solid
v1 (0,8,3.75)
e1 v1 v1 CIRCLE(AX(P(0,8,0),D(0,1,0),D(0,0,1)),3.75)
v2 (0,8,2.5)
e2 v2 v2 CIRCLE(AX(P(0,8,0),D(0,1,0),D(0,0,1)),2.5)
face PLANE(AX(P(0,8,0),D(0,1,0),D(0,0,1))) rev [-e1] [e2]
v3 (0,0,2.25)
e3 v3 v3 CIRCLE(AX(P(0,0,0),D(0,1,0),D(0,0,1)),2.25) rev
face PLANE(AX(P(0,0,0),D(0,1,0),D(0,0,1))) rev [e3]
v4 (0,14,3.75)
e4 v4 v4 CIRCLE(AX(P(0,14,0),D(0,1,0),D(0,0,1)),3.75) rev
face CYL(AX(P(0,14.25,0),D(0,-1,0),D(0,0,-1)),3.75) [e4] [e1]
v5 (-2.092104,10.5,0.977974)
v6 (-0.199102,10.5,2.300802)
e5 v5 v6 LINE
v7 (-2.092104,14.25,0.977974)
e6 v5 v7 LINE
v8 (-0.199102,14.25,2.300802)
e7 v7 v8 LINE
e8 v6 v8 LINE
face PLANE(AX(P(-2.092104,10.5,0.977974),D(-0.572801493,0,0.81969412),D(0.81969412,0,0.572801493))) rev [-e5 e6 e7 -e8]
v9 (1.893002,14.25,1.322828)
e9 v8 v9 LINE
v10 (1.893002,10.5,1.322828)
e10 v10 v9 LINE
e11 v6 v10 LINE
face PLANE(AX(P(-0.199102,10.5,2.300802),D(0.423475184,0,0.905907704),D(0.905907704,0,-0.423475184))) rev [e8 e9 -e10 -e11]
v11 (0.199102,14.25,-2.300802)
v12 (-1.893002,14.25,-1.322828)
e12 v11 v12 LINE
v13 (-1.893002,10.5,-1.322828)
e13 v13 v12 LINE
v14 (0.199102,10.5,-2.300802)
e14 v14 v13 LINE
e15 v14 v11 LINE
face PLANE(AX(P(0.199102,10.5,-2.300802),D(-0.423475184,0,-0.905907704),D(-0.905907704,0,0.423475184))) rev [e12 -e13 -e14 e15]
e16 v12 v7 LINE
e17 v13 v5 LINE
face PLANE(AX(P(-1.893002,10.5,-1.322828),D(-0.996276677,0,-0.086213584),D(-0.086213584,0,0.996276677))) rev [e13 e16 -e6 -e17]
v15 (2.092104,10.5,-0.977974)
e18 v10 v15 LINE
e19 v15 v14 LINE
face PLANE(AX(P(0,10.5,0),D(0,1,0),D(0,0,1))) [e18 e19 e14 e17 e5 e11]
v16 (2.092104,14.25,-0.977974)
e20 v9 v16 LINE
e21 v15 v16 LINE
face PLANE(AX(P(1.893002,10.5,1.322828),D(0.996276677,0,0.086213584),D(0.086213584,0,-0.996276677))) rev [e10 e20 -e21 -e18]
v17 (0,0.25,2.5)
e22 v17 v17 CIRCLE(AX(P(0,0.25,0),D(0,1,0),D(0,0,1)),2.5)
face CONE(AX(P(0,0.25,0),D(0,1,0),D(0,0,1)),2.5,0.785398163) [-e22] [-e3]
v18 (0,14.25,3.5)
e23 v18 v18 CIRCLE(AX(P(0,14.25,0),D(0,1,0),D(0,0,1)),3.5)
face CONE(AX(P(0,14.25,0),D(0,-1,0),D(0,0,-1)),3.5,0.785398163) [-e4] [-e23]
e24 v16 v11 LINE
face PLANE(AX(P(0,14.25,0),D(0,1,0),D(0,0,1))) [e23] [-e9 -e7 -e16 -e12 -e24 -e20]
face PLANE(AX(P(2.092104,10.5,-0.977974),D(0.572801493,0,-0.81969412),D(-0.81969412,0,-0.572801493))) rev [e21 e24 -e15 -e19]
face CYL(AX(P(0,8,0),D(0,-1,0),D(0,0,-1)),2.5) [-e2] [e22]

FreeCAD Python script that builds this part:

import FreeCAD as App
import Part
import Sketcher

V = App.Vector
Q = App.Units.Quantity


def edges_at(feature, points):
    """Names of the edges that pass closest to the given points."""
    edges = feature.Shape.Edges
    near = lambda p: min(range(len(edges)), key=lambda i: edges[i].distToShape(Part.Vertex(*p))[0])
    return sorted({f"Edge{near(p) + 1}" for p in points})

doc = App.newDocument("Part")
body = doc.addObject("PartDesign::Body", "Body")

sketch1 = body.newObject("Sketcher::SketchObject", "Sketch")
sketch1.AttachmentSupport = (doc.getObject("XZ_Plane"), [""])
sketch1.MapMode = "FlatFace"
sketch1.addGeometry(Part.Circle(V(0, 0, 0), V(0, 0, 1), 2.5), False)
sketch1.addConstraint([
    Sketcher.Constraint("Coincident", 0, 3, -1, 1),
    Sketcher.Constraint("Diameter", 0, Q("5 mm")),
])
pad1 = body.newObject("PartDesign::Pad", "Pad")
pad1.Profile = sketch1
pad1.Length = 8
pad1.Reversed = True

sketch2 = body.newObject("Sketcher::SketchObject", "Sketch001")
sketch2.AttachmentSupport = (doc.getObject("XZ_Plane"), [""])
sketch2.MapMode = "FlatFace"
sketch2.AttachmentOffset = App.Placement(V(0, 0, -8), App.Rotation())
sketch2.addGeometry(Part.Circle(V(0, 0, 0), V(0, 0, 1), 3.8), False)
sketch2.addConstraint([
    Sketcher.Constraint("Coincident", 0, 3, -1, 1),
    Sketcher.Constraint("Diameter", 0, Q("7.5 mm")),
])
pad2 = body.newObject("PartDesign::Pad", "Pad001")
pad2.Profile = sketch2
pad2.Length = 6.25
pad2.Reversed = True

sketch3 = body.newObject("Sketcher::SketchObject", "Sketch002")
sketch3.AttachmentSupport = (doc.getObject("XZ_Plane"), [""])
sketch3.MapMode = "FlatFace"
sketch3.AttachmentOffset = App.Placement(V(0, 0, -14.25), App.Rotation())
sketch3.addGeometry([
    Part.LineSegment(V(-0.2, 2.3, 0), V(1.9, 1.3, 0)),
    Part.LineSegment(V(1.9, 1.3, 0), V(2.1, -1, 0)),
    Part.LineSegment(V(2.1, -1, 0), V(0.2, -2.3, 0)),
    Part.LineSegment(V(0.2, -2.3, 0), V(-1.9, -1.3, 0)),
    Part.LineSegment(V(-1.9, -1.3, 0), V(-2.1, 1, 0)),
    Part.LineSegment(V(-2.1, 1, 0), V(-0.2, 2.3, 0)),
], False)
sketch3.addConstraint([
    Sketcher.Constraint("Coincident", 0, 2, 1, 1),
    Sketcher.Constraint("Coincident", 1, 2, 2, 1),
    Sketcher.Constraint("Coincident", 2, 2, 3, 1),
    Sketcher.Constraint("Coincident", 3, 2, 4, 1),
    Sketcher.Constraint("Coincident", 4, 2, 5, 1),
    Sketcher.Constraint("Coincident", 5, 2, 0, 1),
    Sketcher.Constraint("Symmetric", 0, 2, 3, 2, -1, 1),
    Sketcher.Constraint("Symmetric", 1, 2, 4, 2, -1, 1),
    Sketcher.Constraint("Symmetric", 2, 2, 5, 2, -1, 1),
    Sketcher.Constraint("Equal", 0, 1),
    Sketcher.Constraint("Equal", 1, 2),
    Sketcher.Constraint("Distance", 0, Q("2.309401 mm")),
    Sketcher.Constraint("DistanceX", -1, 1, 2, 2, Q("0.199102 mm")),
    Sketcher.Constraint("DistanceX", 0, 2, 1, 2, Q("0.199102 mm")),
    Sketcher.Constraint("DistanceX", 2, 2, 0, 2, Q("1.693901 mm")),
])
pocket1 = body.newObject("PartDesign::Pocket", "Pocket")
pocket1.Profile = sketch3
pocket1.Length = 3.75
pocket1.Reversed = True
doc.recompute()

chamfer = body.newObject("PartDesign::Chamfer", "Chamfer")
chamfer.Base = (pocket1, edges_at(pocket1, [(0, 0, -2.5), (0, 14.25, -3.75)]))
chamfer.Size = 0.25

doc.recompute()
